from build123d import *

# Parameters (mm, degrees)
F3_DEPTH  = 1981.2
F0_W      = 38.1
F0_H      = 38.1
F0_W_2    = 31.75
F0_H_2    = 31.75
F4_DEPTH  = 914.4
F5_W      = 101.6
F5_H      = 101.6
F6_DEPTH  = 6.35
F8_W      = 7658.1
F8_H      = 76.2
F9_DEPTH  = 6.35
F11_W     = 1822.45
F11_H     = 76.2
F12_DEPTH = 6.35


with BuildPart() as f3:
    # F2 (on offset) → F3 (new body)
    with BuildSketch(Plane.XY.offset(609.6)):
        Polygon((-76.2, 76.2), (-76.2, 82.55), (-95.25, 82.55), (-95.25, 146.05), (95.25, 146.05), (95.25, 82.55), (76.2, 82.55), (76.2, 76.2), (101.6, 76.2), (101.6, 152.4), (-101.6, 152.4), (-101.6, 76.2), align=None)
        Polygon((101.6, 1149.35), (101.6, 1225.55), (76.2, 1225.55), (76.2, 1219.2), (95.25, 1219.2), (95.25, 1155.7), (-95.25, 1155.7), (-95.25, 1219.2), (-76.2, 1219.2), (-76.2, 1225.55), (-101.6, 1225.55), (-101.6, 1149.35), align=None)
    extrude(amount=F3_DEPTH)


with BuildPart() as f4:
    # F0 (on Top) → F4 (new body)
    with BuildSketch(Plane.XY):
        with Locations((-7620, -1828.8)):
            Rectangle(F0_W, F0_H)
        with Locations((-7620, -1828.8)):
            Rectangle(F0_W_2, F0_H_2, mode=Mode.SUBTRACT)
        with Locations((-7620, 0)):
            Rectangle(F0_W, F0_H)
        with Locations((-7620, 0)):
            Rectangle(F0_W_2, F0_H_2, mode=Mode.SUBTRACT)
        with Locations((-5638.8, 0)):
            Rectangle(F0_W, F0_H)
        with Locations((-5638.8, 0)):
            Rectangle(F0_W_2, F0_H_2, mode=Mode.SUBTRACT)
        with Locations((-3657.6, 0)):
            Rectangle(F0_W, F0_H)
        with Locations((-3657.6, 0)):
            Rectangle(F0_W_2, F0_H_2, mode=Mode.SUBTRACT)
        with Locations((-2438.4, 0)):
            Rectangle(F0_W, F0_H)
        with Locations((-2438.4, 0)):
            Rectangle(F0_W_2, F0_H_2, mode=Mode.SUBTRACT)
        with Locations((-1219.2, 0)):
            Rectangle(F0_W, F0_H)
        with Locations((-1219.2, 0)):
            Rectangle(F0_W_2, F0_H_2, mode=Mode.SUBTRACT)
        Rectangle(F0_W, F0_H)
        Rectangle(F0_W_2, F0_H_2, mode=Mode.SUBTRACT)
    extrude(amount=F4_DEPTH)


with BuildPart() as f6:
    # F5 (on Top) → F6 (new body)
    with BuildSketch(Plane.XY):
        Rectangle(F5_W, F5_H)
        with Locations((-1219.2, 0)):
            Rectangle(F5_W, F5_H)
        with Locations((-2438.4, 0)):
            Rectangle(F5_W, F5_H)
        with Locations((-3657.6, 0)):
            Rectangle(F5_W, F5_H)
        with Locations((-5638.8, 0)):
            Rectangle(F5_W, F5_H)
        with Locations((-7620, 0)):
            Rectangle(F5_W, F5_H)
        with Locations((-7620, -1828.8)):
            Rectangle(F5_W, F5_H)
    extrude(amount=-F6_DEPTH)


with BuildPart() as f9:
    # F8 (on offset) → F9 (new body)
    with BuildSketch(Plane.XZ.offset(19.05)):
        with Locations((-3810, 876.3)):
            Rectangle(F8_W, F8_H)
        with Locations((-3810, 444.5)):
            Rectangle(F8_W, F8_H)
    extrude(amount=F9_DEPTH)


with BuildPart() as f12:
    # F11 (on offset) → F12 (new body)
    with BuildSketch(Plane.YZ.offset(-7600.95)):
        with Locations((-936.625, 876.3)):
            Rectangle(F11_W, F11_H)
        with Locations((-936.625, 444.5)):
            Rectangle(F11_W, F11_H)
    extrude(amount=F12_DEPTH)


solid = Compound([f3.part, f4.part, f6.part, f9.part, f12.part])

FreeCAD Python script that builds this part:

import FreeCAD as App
import Part
import Sketcher
from FreeCAD import Vector
Q = App.Units.Quantity

doc = App.newDocument("Part")
body = doc.addObject("PartDesign::Body", "Body")
body.AllowCompound = True

sketch1 = body.newObject("Sketcher::SketchObject", "Sketch")
sketch1.AttachmentSupport = (doc.getObject("XY_Plane"), [""])
sketch1.MapMode = "FlatFace"
sketch1.AttachmentOffset = App.Placement(Vector(0, 0, 24 * 25.4), App.Rotation())
sketch1.addGeometry([
    Part.LineSegment(Vector(-76.2, 76.2, 0), Vector(-76.2, 82.55, 0)),
    Part.LineSegment(Vector(-76.2, 82.55, 0), Vector(-95.25, 82.55, 0)),
    Part.LineSegment(Vector(-95.25, 82.55, 0), Vector(-95.25, 146.05, 0)),
    Part.LineSegment(Vector(-95.25, 146.05, 0), Vector(95.25, 146.05, 0)),
    Part.LineSegment(Vector(95.25, 146.05, 0), Vector(95.25, 82.55, 0)),
    Part.LineSegment(Vector(95.25, 82.55, 0), Vector(76.2, 82.55, 0)),
    Part.LineSegment(Vector(76.2, 82.55, 0), Vector(76.2, 76.2, 0)),
    Part.LineSegment(Vector(76.2, 76.2, 0), Vector(101.6, 76.2, 0)),
    Part.LineSegment(Vector(101.6, 76.2, 0), Vector(101.6, 152.4, 0)),
    Part.LineSegment(Vector(101.6, 152.4, 0), Vector(-101.6, 152.4, 0)),
    Part.LineSegment(Vector(-101.6, 152.4, 0), Vector(-101.6, 76.2, 0)),
    Part.LineSegment(Vector(-101.6, 76.2, 0), Vector(-76.2, 76.2, 0)),
    Part.LineSegment(Vector(101.6, 1149.35, 0), Vector(101.6, 1225.55, 0)),
    Part.LineSegment(Vector(101.6, 1225.55, 0), Vector(76.2, 1225.55, 0)),
    Part.LineSegment(Vector(76.2, 1225.55, 0), Vector(76.2, 1219.2, 0)),
    Part.LineSegment(Vector(76.2, 1219.2, 0), Vector(95.25, 1219.2, 0)),
    Part.LineSegment(Vector(95.25, 1219.2, 0), Vector(95.25, 1155.7, 0)),
    Part.LineSegment(Vector(95.25, 1155.7, 0), Vector(-95.25, 1155.7, 0)),
    Part.LineSegment(Vector(-95.25, 1155.7, 0), Vector(-95.25, 1219.2, 0)),
    Part.LineSegment(Vector(-95.25, 1219.2, 0), Vector(-76.2, 1219.2, 0)),
    Part.LineSegment(Vector(-76.2, 1219.2, 0), Vector(-76.2, 1225.55, 0)),
    Part.LineSegment(Vector(-76.2, 1225.55, 0), Vector(-101.6, 1225.55, 0)),
    Part.LineSegment(Vector(-101.6, 1225.55, 0), Vector(-101.6, 1149.35, 0)),
    Part.LineSegment(Vector(-101.6, 1149.35, 0), Vector(101.6, 1149.35, 0)),
], False)
sketch1.addConstraint([
    Sketcher.Constraint("Coincident", 0, 2, 1, 1),
    Sketcher.Constraint("Coincident", 1, 2, 2, 1),
    Sketcher.Constraint("Coincident", 2, 2, 3, 1),
    Sketcher.Constraint("Coincident", 3, 2, 4, 1),
    Sketcher.Constraint("Coincident", 4, 2, 5, 1),
    Sketcher.Constraint("Coincident", 5, 2, 6, 1),
    Sketcher.Constraint("Coincident", 6, 2, 7, 1),
    Sketcher.Constraint("Coincident", 7, 2, 8, 1),
    Sketcher.Constraint("Coincident", 8, 2, 9, 1),
    Sketcher.Constraint("Coincident", 9, 2, 10, 1),
    Sketcher.Constraint("Coincident", 10, 2, 11, 1),
    Sketcher.Constraint("Coincident", 11, 2, 0, 1),
    Sketcher.Constraint("Coincident", 12, 2, 13, 1),
    Sketcher.Constraint("Coincident", 13, 2, 14, 1),
    Sketcher.Constraint("Coincident", 14, 2, 15, 1),
    Sketcher.Constraint("Coincident", 15, 2, 16, 1),
    Sketcher.Constraint("Coincident", 16, 2, 17, 1),
    Sketcher.Constraint("Coincident", 17, 2, 18, 1),
    Sketcher.Constraint("Coincident", 18, 2, 19, 1),
    Sketcher.Constraint("Coincident", 19, 2, 20, 1),
    Sketcher.Constraint("Coincident", 20, 2, 21, 1),
    Sketcher.Constraint("Coincident", 21, 2, 22, 1),
    Sketcher.Constraint("Coincident", 22, 2, 23, 1),
    Sketcher.Constraint("Coincident", 23, 2, 12, 1),
    Sketcher.Constraint("Vertical", 0),
    Sketcher.Constraint("Horizontal", 1),
    Sketcher.Constraint("Vertical", 2),
    Sketcher.Constraint("Horizontal", 3),
    Sketcher.Constraint("Vertical", 4),
    Sketcher.Constraint("Horizontal", 5),
    Sketcher.Constraint("Vertical", 6),
    Sketcher.Constraint("Horizontal", 7),
    Sketcher.Constraint("Vertical", 8),
    Sketcher.Constraint("Horizontal", 9),
    Sketcher.Constraint("Vertical", 10),
    Sketcher.Constraint("Horizontal", 11),
    Sketcher.Constraint("Vertical", 12),
    Sketcher.Constraint("Horizontal", 13),
    Sketcher.Constraint("Vertical", 14),
    Sketcher.Constraint("Horizontal", 15),
    Sketcher.Constraint("Vertical", 16),
    Sketcher.Constraint("Horizontal", 17),
    Sketcher.Constraint("Vertical", 18),
    Sketcher.Constraint("Horizontal", 19),
    Sketcher.Constraint("Vertical", 20),
    Sketcher.Constraint("Horizontal", 21),
    Sketcher.Constraint("Vertical", 22),
    Sketcher.Constraint("Horizontal", 23),
    Sketcher.Constraint("Symmetric", 1, 2, 4, 2, -2),
    Sketcher.Constraint("Symmetric", 7, 2, 10, 2, -2),
    Sketcher.Constraint("Symmetric", 15, 2, 18, 2, -2),
    Sketcher.Constraint("Symmetric", 13, 2, 20, 2, -2),
    Sketcher.Constraint("Vertical", 8, 2, 12, 2),
    Sketcher.Constraint("Vertical", 6, 2, 13, 2),
    Sketcher.Constraint("Vertical", 4, 2, 15, 2),
    Sketcher.Constraint("Vertical", 11, 2, 19, 2),
    Sketcher.Constraint("Vertical", 10, 2, 21, 2),
    Sketcher.Constraint("Equal", 10, 12),
    Sketcher.Constraint("Equal", 6, 14),
    Sketcher.Constraint("Equal", 4, 16),
    Sketcher.Constraint("DistanceX", 7, 1, 7, 2, Q("1 in")),
    Sketcher.Constraint("DistanceX", 9, 2, 9, 1, Q("8 in")),
    Sketcher.Constraint("DistanceY", 8, 1, 8, 2, Q("3 in")),
    Sketcher.Constraint("DistanceX", 3, 1, 3, 2, Q("7.5 in")),
    Sketcher.Constraint("DistanceY", 2, 1, 2, 2, Q("2.5 in")),
    Sketcher.Constraint("DistanceY", -1, 1, 6, 2, Q("3 in")),
    Sketcher.Constraint("DistanceY", -1, 1, 14, 2, Q("48 in")),
    Sketcher.Constraint("DistanceY", 0, 1, 0, 2, Q("0.25 in")),
])
pad1 = body.newObject("PartDesign::Pad", "Pad")
pad1.Profile = sketch1
pad1.Length = Q("78 in")
body2 = doc.addObject("PartDesign::Body", "Body001")
body2.AllowCompound = True

sketch2 = body2.newObject("Sketcher::SketchObject", "Sketch001")
sketch2.AttachmentSupport = (doc.getObject("XY_Plane001"), [""])
sketch2.MapMode = "FlatFace"
sketch2.addGeometry([
    Part.LineSegment(Vector(-7639.05, -1809.75, 0), Vector(-7639.05, -1847.85, 0)),
    Part.LineSegment(Vector(-7639.05, -1847.85, 0), Vector(-7600.95, -1847.85, 0)),
    Part.LineSegment(Vector(-7600.95, -1847.85, 0), Vector(-7600.95, -1809.75, 0)),
    Part.LineSegment(Vector(-7600.95, -1809.75, 0), Vector(-7639.05, -1809.75, 0)),
    Part.LineSegment(Vector(-7604.125, -1844.675, 0), Vector(-7635.875, -1844.675, 0)),
    Part.LineSegment(Vector(-7635.875, -1844.675, 0), Vector(-7635.875, -1812.925, 0)),
    Part.LineSegment(Vector(-7635.875, -1812.925, 0), Vector(-7604.125, -1812.925, 0)),
    Part.LineSegment(Vector(-7604.125, -1812.925, 0), Vector(-7604.125, -1844.675, 0)),
    Part.LineSegment(Vector(-7639.05, 19.05, 0), Vector(-7639.05, -19.05, 0)),
    Part.LineSegment(Vector(-7639.05, -19.05, 0), Vector(-7600.95, -19.05, 0)),
    Part.LineSegment(Vector(-7600.95, -19.05, 0), Vector(-7600.95, 19.05, 0)),
    Part.LineSegment(Vector(-7600.95, 19.05, 0), Vector(-7639.05, 19.05, 0)),
    Part.LineSegment(Vector(-7604.125, -15.875, 0), Vector(-7635.875, -15.875, 0)),
    Part.LineSegment(Vector(-7635.875, -15.875, 0), Vector(-7635.875, 15.875, 0)),
    Part.LineSegment(Vector(-7635.875, 15.875, 0), Vector(-7604.125, 15.875, 0)),
    Part.LineSegment(Vector(-7604.125, 15.875, 0), Vector(-7604.125, -15.875, 0)),
    Part.LineSegment(Vector(-5657.85, 19.05, 0), Vector(-5657.85, -19.05, 0)),
    Part.LineSegment(Vector(-5657.85, -19.05, 0), Vector(-5619.75, -19.05, 0)),
    Part.LineSegment(Vector(-5619.75, -19.05, 0), Vector(-5619.75, 19.05, 0)),
    Part.LineSegment(Vector(-5619.75, 19.05, 0), Vector(-5657.85, 19.05, 0)),
    Part.LineSegment(Vector(-5622.925, -15.875, 0), Vector(-5654.675, -15.875, 0)),
    Part.LineSegment(Vector(-5654.675, -15.875, 0), Vector(-5654.675, 15.875, 0)),
    Part.LineSegment(Vector(-5654.675, 15.875, 0), Vector(-5622.925, 15.875, 0)),
    Part.LineSegment(Vector(-5622.925, 15.875, 0), Vector(-5622.925, -15.875, 0)),
    Part.LineSegment(Vector(-3676.65, 19.05, 0), Vector(-3676.65, -19.05, 0)),
    Part.LineSegment(Vector(-3676.65, -19.05, 0), Vector(-3638.55, -19.05, 0)),
    Part.LineSegment(Vector(-3638.55, -19.05, 0), Vector(-3638.55, 19.05, 0)),
    Part.LineSegment(Vector(-3638.55, 19.05, 0), Vector(-3676.65, 19.05, 0)),
    Part.LineSegment(Vector(-3641.725, -15.875, 0), Vector(-3673.475, -15.875, 0)),
    Part.LineSegment(Vector(-3673.475, -15.875, 0), Vector(-3673.475, 15.875, 0)),
    Part.LineSegment(Vector(-3673.475, 15.875, 0), Vector(-3641.725, 15.875, 0)),
    Part.LineSegment(Vector(-3641.725, 15.875, 0), Vector(-3641.725, -15.875, 0)),
    Part.LineSegment(Vector(-2457.45, 19.05, 0), Vector(-2457.45, -19.05, 0)),
    Part.LineSegment(Vector(-2457.45, -19.05, 0), Vector(-2419.35, -19.05, 0)),
    Part.LineSegment(Vector(-2419.35, -19.05, 0), Vector(-2419.35, 19.05, 0)),
    Part.LineSegment(Vector(-2419.35, 19.05, 0), Vector(-2457.45, 19.05, 0)),
    Part.LineSegment(Vector(-2422.525, -15.875, 0), Vector(-2454.275, -15.875, 0)),
    Part.LineSegment(Vector(-2454.275, -15.875, 0), Vector(-2454.275, 15.875, 0)),
    Part.LineSegment(Vector(-2454.275, 15.875, 0), Vector(-2422.525, 15.875, 0)),
    Part.LineSegment(Vector(-2422.525, 15.875, 0), Vector(-2422.525, -15.875, 0)),
    Part.LineSegment(Vector(-1238.25, 19.05, 0), Vector(-1238.25, -19.05, 0)),
    Part.LineSegment(Vector(-1238.25, -19.05, 0), Vector(-1200.15, -19.05, 0)),
    Part.LineSegment(Vector(-1200.15, -19.05, 0), Vector(-1200.15, 19.05, 0)),
    Part.LineSegment(Vector(-1200.15, 19.05, 0), Vector(-1238.25, 19.05, 0)),
    Part.LineSegment(Vector(-1203.325, -15.875, 0), Vector(-1235.075, -15.875, 0)),
    Part.LineSegment(Vector(-1235.075, -15.875, 0), Vector(-1235.075, 15.875, 0)),
    Part.LineSegment(Vector(-1235.075, 15.875, 0), Vector(-1203.325, 15.875, 0)),
    Part.LineSegment(Vector(-1203.325, 15.875, 0), Vector(-1203.325, -15.875, 0)),
    Part.LineSegment(Vector(-19.05, 19.05, 0), Vector(-19.05, -19.05, 0)),
    Part.LineSegment(Vector(-19.05, -19.05, 0), Vector(19.05, -19.05, 0)),
    Part.LineSegment(Vector(19.05, -19.05, 0), Vector(19.05, 19.05, 0)),
    Part.LineSegment(Vector(19.05, 19.05, 0), Vector(-19.05, 19.05, 0)),
    Part.LineSegment(Vector(15.875, -15.875, 0), Vector(-15.875, -15.875, 0)),
    Part.LineSegment(Vector(-15.875, -15.875, 0), Vector(-15.875, 15.875, 0)),
    Part.LineSegment(Vector(-15.875, 15.875, 0), Vector(15.875, 15.875, 0)),
    Part.LineSegment(Vector(15.875, 15.875, 0), Vector(15.875, -15.875, 0)),
], False)
sketch2.addConstraint([
    Sketcher.Constraint("Coincident", 0, 2, 1, 1),
    Sketcher.Constraint("Coincident", 1, 2, 2, 1),
    Sketcher.Constraint("Coincident", 2, 2, 3, 1),
    Sketcher.Constraint("Coincident", 3, 2, 0, 1),
    Sketcher.Constraint("Coincident", 4, 2, 5, 1),
    Sketcher.Constraint("Coincident", 5, 2, 6, 1),
    Sketcher.Constraint("Coincident", 6, 2, 7, 1),
    Sketcher.Constraint("Coincident", 7, 2, 4, 1),
    Sketcher.Constraint("Coincident", 8, 2, 9, 1),
    Sketcher.Constraint("Coincident", 9, 2, 10, 1),
    Sketcher.Constraint("Coincident", 10, 2, 11, 1),
    Sketcher.Constraint("Coincident", 11, 2, 8, 1),
    Sketcher.Constraint("Coincident", 12, 2, 13, 1),
    Sketcher.Constraint("Coincident", 13, 2, 14, 1),
    Sketcher.Constraint("Coincident", 14, 2, 15, 1),
    Sketcher.Constraint("Coincident", 15, 2, 12, 1),
    Sketcher.Constraint("Coincident", 16, 2, 17, 1),
    Sketcher.Constraint("Coincident", 17, 2, 18, 1),
    Sketcher.Constraint("Coincident", 18, 2, 19, 1),
    Sketcher.Constraint("Coincident", 19, 2, 16, 1),
    Sketcher.Constraint("Coincident", 20, 2, 21, 1),
    Sketcher.Constraint("Coincident", 21, 2, 22, 1),
    Sketcher.Constraint("Coincident", 22, 2, 23, 1),
    Sketcher.Constraint("Coincident", 23, 2, 20, 1),
    Sketcher.Constraint("Coincident", 24, 2, 25, 1),
    Sketcher.Constraint("Coincident", 25, 2, 26, 1),
    Sketcher.Constraint("Coincident", 26, 2, 27, 1),
    Sketcher.Constraint("Coincident", 27, 2, 24, 1),
    Sketcher.Constraint("Coincident", 28, 2, 29, 1),
    Sketcher.Constraint("Coincident", 29, 2, 30, 1),
    Sketcher.Constraint("Coincident", 30, 2, 31, 1),
    Sketcher.Constraint("Coincident", 31, 2, 28, 1),
    Sketcher.Constraint("Coincident", 32, 2, 33, 1),
    Sketcher.Constraint("Coincident", 33, 2, 34, 1),
    Sketcher.Constraint("Coincident", 34, 2, 35, 1),
    Sketcher.Constraint("Coincident", 35, 2, 32, 1),
    Sketcher.Constraint("Coincident", 36, 2, 37, 1),
    Sketcher.Constraint("Coincident", 37, 2, 38, 1),
    Sketcher.Constraint("Coincident", 38, 2, 39, 1),
    Sketcher.Constraint("Coincident", 39, 2, 36, 1),
    Sketcher.Constraint("Coincident", 40, 2, 41, 1),
    Sketcher.Constraint("Coincident", 41, 2, 42, 1),
    Sketcher.Constraint("Coincident", 42, 2, 43, 1),
    Sketcher.Constraint("Coincident", 43, 2, 40, 1),
    Sketcher.Constraint("Coincident", 44, 2, 45, 1),
    Sketcher.Constraint("Coincident", 45, 2, 46, 1),
    Sketcher.Constraint("Coincident", 46, 2, 47, 1),
    Sketcher.Constraint("Coincident", 47, 2, 44, 1),
    Sketcher.Constraint("Coincident", 48, 2, 49, 1),
    Sketcher.Constraint("Coincident", 49, 2, 50, 1),
    Sketcher.Constraint("Coincident", 50, 2, 51, 1),
    Sketcher.Constraint("Coincident", 51, 2, 48, 1),
    Sketcher.Constraint("Coincident", 52, 2, 53, 1),
    Sketcher.Constraint("Coincident", 53, 2, 54, 1),
    Sketcher.Constraint("Coincident", 54, 2, 55, 1),
    Sketcher.Constraint("Coincident", 55, 2, 52, 1),
    Sketcher.Constraint("Vertical", 0),
    Sketcher.Constraint("Horizontal", 1),
    Sketcher.Constraint("Vertical", 2),
    Sketcher.Constraint("Horizontal", 3),
    Sketcher.Constraint("Horizontal", 4),
    Sketcher.Constraint("Vertical", 5),
    Sketcher.Constraint("Horizontal", 6),
    Sketcher.Constraint("Vertical", 7),
    Sketcher.Constraint("Vertical", 8),
    Sketcher.Constraint("Horizontal", 9),
    Sketcher.Constraint("Vertical", 10),
    Sketcher.Constraint("Horizontal", 11),
    Sketcher.Constraint("Horizontal", 12),
    Sketcher.Constraint("Vertical", 13),
    Sketcher.Constraint("Horizontal", 14),
    Sketcher.Constraint("Vertical", 15),
    Sketcher.Constraint("Vertical", 16),
    Sketcher.Constraint("Horizontal", 17),
    Sketcher.Constraint("Vertical", 18),
    Sketcher.Constraint("Horizontal", 19),
    Sketcher.Constraint("Horizontal", 20),
    Sketcher.Constraint("Vertical", 21),
    Sketcher.Constraint("Horizontal", 22),
    Sketcher.Constraint("Vertical", 23),
    Sketcher.Constraint("Vertical", 24),
    Sketcher.Constraint("Horizontal", 25),
    Sketcher.Constraint("Vertical", 26),
    Sketcher.Constraint("Horizontal", 27),
    Sketcher.Constraint("Horizontal", 28),
    Sketcher.Constraint("Vertical", 29),
    Sketcher.Constraint("Horizontal", 30),
    Sketcher.Constraint("Vertical", 31),
    Sketcher.Constraint("Vertical", 32),
    Sketcher.Constraint("Horizontal", 33),
    Sketcher.Constraint("Vertical", 34),
    Sketcher.Constraint("Horizontal", 35),
    Sketcher.Constraint("Horizontal", 36),
    Sketcher.Constraint("Vertical", 37),
    Sketcher.Constraint("Horizontal", 38),
    Sketcher.Constraint("Vertical", 39),
    Sketcher.Constraint("Vertical", 40),
    Sketcher.Constraint("Horizontal", 41),
    Sketcher.Constraint("Vertical", 42),
    Sketcher.Constraint("Horizontal", 43),
    Sketcher.Constraint("Horizontal", 44),
    Sketcher.Constraint("Vertical", 45),
    Sketcher.Constraint("Horizontal", 46),
    Sketcher.Constraint("Vertical", 47),
    Sketcher.Constraint("Vertical", 48),
    Sketcher.Constraint("Horizontal", 49),
    Sketcher.Constraint("Vertical", 50),
    Sketcher.Constraint("Horizontal", 51),
    Sketcher.Constraint("Horizontal", 52),
    Sketcher.Constraint("Vertical", 53),
    Sketcher.Constraint("Horizontal", 54),
    Sketcher.Constraint("Vertical", 55),
    Sketcher.Constraint("Symmetric", 48, 2, 50, 2, -1, 1),
    Sketcher.Constraint("Symmetric", 52, 2, 54, 2, -1, 1),
    Sketcher.Constraint("Horizontal", 9, 2, 16, 2),
    Sketcher.Constraint("Horizontal", 11, 2, 18, 2),
    Sketcher.Constraint("Horizontal", 15, 2, 20, 2),
    Sketcher.Constraint("Horizontal", 14, 2, 21, 2),
    Sketcher.Constraint("Horizontal", 17, 2, 24, 2),
    Sketcher.Constraint("Horizontal", 19, 2, 26, 2),
    Sketcher.Constraint("Horizontal", 23, 2, 28, 2),
    Sketcher.Constraint("Horizontal", 22, 2, 29, 2),
    Sketcher.Constraint("Horizontal", 25, 2, 32, 2),
    Sketcher.Constraint("Horizontal", 27, 2, 34, 2),
    Sketcher.Constraint("Horizontal", 31, 2, 36, 2),
    Sketcher.Constraint("Horizontal", 30, 2, 37, 2),
    Sketcher.Constraint("Horizontal", 33, 2, 40, 2),
    Sketcher.Constraint("Horizontal", 35, 2, 42, 2),
    Sketcher.Constraint("Horizontal", 39, 2, 44, 2),
    Sketcher.Constraint("Horizontal", 38, 2, 45, 2),
    Sketcher.Constraint("Horizontal", 41, 2, 48, 2),
    Sketcher.Constraint("Horizontal", 43, 2, 50, 2),
    Sketcher.Constraint("Horizontal", 47, 2, 52, 2),
    Sketcher.Constraint("Horizontal", 46, 2, 53, 2),
    Sketcher.Constraint("Vertical", 3, 2, 8, 2),
    Sketcher.Constraint("Vertical", 2, 2, 9, 2),
    Sketcher.Constraint("Vertical", 5, 2, 12, 2),
    Sketcher.Constraint("Vertical", 7, 2, 14, 2),
    Sketcher.Constraint("Equal", 11, 17),
    Sketcher.Constraint("Equal", 14, 20),
    Sketcher.Constraint("Equal", 19, 25),
    Sketcher.Constraint("Equal", 22, 28),
    Sketcher.Constraint("Equal", 27, 33),
    Sketcher.Constraint("Equal", 30, 36),
    Sketcher.Constraint("Equal", 35, 41),
    Sketcher.Constraint("Equal", 38, 44),
    Sketcher.Constraint("Equal", 43, 49),
    Sketcher.Constraint("Equal", 46, 52),
    Sketcher.Constraint("Equal", 51, 0),
    Sketcher.Constraint("Equal", 54, 5),
    Sketcher.Constraint("Equal", 2, 8),
    Sketcher.Constraint("Equal", 7, 13),
    Sketcher.Constraint("DistanceX", 1, 1, 1, 2, Q("1.5 in")),
    Sketcher.Constraint("DistanceY", 2, 2, 10, 2, Q("72 in")),
    Sketcher.Constraint("DistanceX", 9, 2, 17, 2, Q("78 in")),
    Sketcher.Constraint("DistanceX", 17, 2, 25, 2, Q("78 in")),
    Sketcher.Constraint("DistanceX", 25, 2, 33, 2, Q("48 in")),
    Sketcher.Constraint("DistanceX", 33, 2, 41, 2, Q("48 in")),
    Sketcher.Constraint("DistanceX", 41, 2, 49, 2, Q("48 in")),
    Sketcher.Constraint("DistanceX", 4, 2, 4, 1, Q("1.25 in")),
    Sketcher.Constraint("DistanceX", 4, 2, -1, 1, Q("300.625 in")),
    Sketcher.Constraint("DistanceY", 4, 2, -1, 1, Q("72.625 in")),
    Sketcher.Constraint("DistanceX", 20, 2, -1, 1, Q("222.625 in")),
    Sketcher.Constraint("DistanceX", 28, 2, -1, 1, Q("144.625 in")),
    Sketcher.Constraint("DistanceX", 36, 2, -1, 1, Q("96.625 in")),
    Sketcher.Constraint("DistanceX", 44, 2, -1, 1, Q("48.625 in")),
])
pad2 = body2.newObject("PartDesign::Pad", "Pad001")
pad2.Profile = sketch2
pad2.Length = Q("36 in")
body3 = doc.addObject("PartDesign::Body", "Body002")
body3.AllowCompound = True

sketch3 = body3.newObject("Sketcher::SketchObject", "Sketch002")
sketch3.AttachmentSupport = (doc.getObject("XY_Plane002"), [""])
sketch3.MapMode = "FlatFace"
sketch3.addGeometry([
    Part.LineSegment(Vector(-50.8, 50.8, 0), Vector(-50.8, -50.8, 0)),
    Part.LineSegment(Vector(-50.8, -50.8, 0), Vector(50.8, -50.8, 0)),
    Part.LineSegment(Vector(50.8, -50.8, 0), Vector(50.8, 50.8, 0)),
    Part.LineSegment(Vector(50.8, 50.8, 0), Vector(-50.8, 50.8, 0)),
    Part.LineSegment(Vector(-1270, 50.8, 0), Vector(-1270, -50.8, 0)),
    Part.LineSegment(Vector(-1270, -50.8, 0), Vector(-1168.4, -50.8, 0)),
    Part.LineSegment(Vector(-1168.4, -50.8, 0), Vector(-1168.4, 50.8, 0)),
    Part.LineSegment(Vector(-1168.4, 50.8, 0), Vector(-1270, 50.8, 0)),
    Part.LineSegment(Vector(-2489.2, 50.8, 0), Vector(-2489.2, -50.8, 0)),
    Part.LineSegment(Vector(-2489.2, -50.8, 0), Vector(-2387.6, -50.8, 0)),
    Part.LineSegment(Vector(-2387.6, -50.8, 0), Vector(-2387.6, 50.8, 0)),
    Part.LineSegment(Vector(-2387.6, 50.8, 0), Vector(-2489.2, 50.8, 0)),
    Part.LineSegment(Vector(-3708.4, 50.8, 0), Vector(-3708.4, -50.8, 0)),
    Part.LineSegment(Vector(-3708.4, -50.8, 0), Vector(-3606.8, -50.8, 0)),
    Part.LineSegment(Vector(-3606.8, -50.8, 0), Vector(-3606.8, 50.8, 0)),
    Part.LineSegment(Vector(-3606.8, 50.8, 0), Vector(-3708.4, 50.8, 0)),
    Part.LineSegment(Vector(-5689.6, 50.8, 0), Vector(-5689.6, -50.8, 0)),
    Part.LineSegment(Vector(-5689.6, -50.8, 0), Vector(-5588, -50.8, 0)),
    Part.LineSegment(Vector(-5588, -50.8, 0), Vector(-5588, 50.8, 0)),
    Part.LineSegment(Vector(-5588, 50.8, 0), Vector(-5689.6, 50.8, 0)),
    Part.LineSegment(Vector(-7670.8, 50.8, 0), Vector(-7670.8, -50.8, 0)),
    Part.LineSegment(Vector(-7670.8, -50.8, 0), Vector(-7569.2, -50.8, 0)),
    Part.LineSegment(Vector(-7569.2, -50.8, 0), Vector(-7569.2, 50.8, 0)),
    Part.LineSegment(Vector(-7569.2, 50.8, 0), Vector(-7670.8, 50.8, 0)),
    Part.LineSegment(Vector(-7670.8, -1778, 0), Vector(-7670.8, -1879.6, 0)),
    Part.LineSegment(Vector(-7670.8, -1879.6, 0), Vector(-7569.2, -1879.6, 0)),
    Part.LineSegment(Vector(-7569.2, -1879.6, 0), Vector(-7569.2, -1778, 0)),
    Part.LineSegment(Vector(-7569.2, -1778, 0), Vector(-7670.8, -1778, 0)),
], False)
sketch3.addConstraint([
    Sketcher.Constraint("Coincident", 0, 2, 1, 1),
    Sketcher.Constraint("Coincident", 1, 2, 2, 1),
    Sketcher.Constraint("Coincident", 2, 2, 3, 1),
    Sketcher.Constraint("Coincident", 3, 2, 0, 1),
    Sketcher.Constraint("Coincident", 4, 2, 5, 1),
    Sketcher.Constraint("Coincident", 5, 2, 6, 1),
    Sketcher.Constraint("Coincident", 6, 2, 7, 1),
    Sketcher.Constraint("Coincident", 7, 2, 4, 1),
    Sketcher.Constraint("Coincident", 8, 2, 9, 1),
    Sketcher.Constraint("Coincident", 9, 2, 10, 1),
    Sketcher.Constraint("Coincident", 10, 2, 11, 1),
    Sketcher.Constraint("Coincident", 11, 2, 8, 1),
    Sketcher.Constraint("Coincident", 12, 2, 13, 1),
    Sketcher.Constraint("Coincident", 13, 2, 14, 1),
    Sketcher.Constraint("Coincident", 14, 2, 15, 1),
    Sketcher.Constraint("Coincident", 15, 2, 12, 1),
    Sketcher.Constraint("Coincident", 16, 2, 17, 1),
    Sketcher.Constraint("Coincident", 17, 2, 18, 1),
    Sketcher.Constraint("Coincident", 18, 2, 19, 1),
    Sketcher.Constraint("Coincident", 19, 2, 16, 1),
    Sketcher.Constraint("Coincident", 20, 2, 21, 1),
    Sketcher.Constraint("Coincident", 21, 2, 22, 1),
    Sketcher.Constraint("Coincident", 22, 2, 23, 1),
    Sketcher.Constraint("Coincident", 23, 2, 20, 1),
    Sketcher.Constraint("Coincident", 24, 2, 25, 1),
    Sketcher.Constraint("Coincident", 25, 2, 26, 1),
    Sketcher.Constraint("Coincident", 26, 2, 27, 1),
    Sketcher.Constraint("Coincident", 27, 2, 24, 1),
    Sketcher.Constraint("Vertical", 0),
    Sketcher.Constraint("Horizontal", 1),
    Sketcher.Constraint("Vertical", 2),
    Sketcher.Constraint("Horizontal", 3),
    Sketcher.Constraint("Vertical", 4),
    Sketcher.Constraint("Horizontal", 5),
    Sketcher.Constraint("Vertical", 6),
    Sketcher.Constraint("Horizontal", 7),
    Sketcher.Constraint("Vertical", 8),
    Sketcher.Constraint("Horizontal", 9),
    Sketcher.Constraint("Vertical", 10),
    Sketcher.Constraint("Horizontal", 11),
    Sketcher.Constraint("Vertical", 12),
    Sketcher.Constraint("Horizontal", 13),
    Sketcher.Constraint("Vertical", 14),
    Sketcher.Constraint("Horizontal", 15),
    Sketcher.Constraint("Vertical", 16),
    Sketcher.Constraint("Horizontal", 17),
    Sketcher.Constraint("Vertical", 18),
    Sketcher.Constraint("Horizontal", 19),
    Sketcher.Constraint("Vertical", 20),
    Sketcher.Constraint("Horizontal", 21),
    Sketcher.Constraint("Vertical", 22),
    Sketcher.Constraint("Horizontal", 23),
    Sketcher.Constraint("Vertical", 24),
    Sketcher.Constraint("Horizontal", 25),
    Sketcher.Constraint("Vertical", 26),
    Sketcher.Constraint("Horizontal", 27),
    Sketcher.Constraint("Symmetric", 0, 2, 2, 2, -1, 1),
    Sketcher.Constraint("Horizontal", 1, 2, 4, 2),
    Sketcher.Constraint("Horizontal", 3, 2, 6, 2),
    Sketcher.Constraint("Horizontal", 5, 2, 8, 2),
    Sketcher.Constraint("Horizontal", 7, 2, 10, 2),
    Sketcher.Constraint("Horizontal", 9, 2, 12, 2),
    Sketcher.Constraint("Horizontal", 11, 2, 14, 2),
    Sketcher.Constraint("Horizontal", 13, 2, 16, 2),
    Sketcher.Constraint("Horizontal", 15, 2, 18, 2),
    Sketcher.Constraint("Horizontal", 17, 2, 20, 2),
    Sketcher.Constraint("Horizontal", 19, 2, 22, 2),
    Sketcher.Constraint("Vertical", 23, 2, 24, 2),
    Sketcher.Constraint("Vertical", 22, 2, 25, 2),
    Sketcher.Constraint("Equal", 3, 5),
    Sketcher.Constraint("Equal", 7, 9),
    Sketcher.Constraint("Equal", 11, 13),
    Sketcher.Constraint("Equal", 15, 17),
    Sketcher.Constraint("Equal", 19, 21),
    Sketcher.Constraint("Equal", 27, 0),
    Sketcher.Constraint("Equal", 22, 24),
    Sketcher.Constraint("DistanceX", 1, 1, 1, 2, Q("4 in")),
    Sketcher.Constraint("DistanceX", 4, 2, -1, 1, Q("50 in")),
    Sketcher.Constraint("DistanceX", 8, 2, -1, 1, Q("98 in")),
    Sketcher.Constraint("DistanceX", 12, 2, -1, 1, Q("146 in")),
    Sketcher.Constraint("DistanceX", 16, 2, -1, 1, Q("224 in")),
    Sketcher.Constraint("DistanceX", 20, 2, -1, 1, Q("302 in")),
    Sketcher.Constraint("DistanceY", 24, 2, -1, 1, Q("74 in")),
])
pad3 = body3.newObject("PartDesign::Pad", "Pad002")
pad3.Profile = sketch3
pad3.Length = Q("0.25 in")
pad3.Reversed = True
body4 = doc.addObject("PartDesign::Body", "Body003")
body4.AllowCompound = True

sketch4 = body4.newObject("Sketcher::SketchObject", "Sketch003")
sketch4.AttachmentSupport = (doc.getObject("XZ_Plane003"), [""])
sketch4.MapMode = "FlatFace"
sketch4.AttachmentOffset = App.Placement(Vector(0, 0, 0.75 * 25.4), App.Rotation())
sketch4.addGeometry([
    Part.LineSegment(Vector(-7639.05, 914.4, 0), Vector(-7639.05, 838.2, 0)),
    Part.LineSegment(Vector(-7639.05, 838.2, 0), Vector(19.05, 838.2, 0)),
    Part.LineSegment(Vector(19.05, 838.2, 0), Vector(19.05, 914.4, 0)),
    Part.LineSegment(Vector(19.05, 914.4, 0), Vector(-7639.05, 914.4, 0)),
    Part.LineSegment(Vector(-7639.05, 482.6, 0), Vector(-7639.05, 406.4, 0)),
    Part.LineSegment(Vector(-7639.05, 406.4, 0), Vector(19.05, 406.4, 0)),
    Part.LineSegment(Vector(19.05, 406.4, 0), Vector(19.05, 482.6, 0)),
    Part.LineSegment(Vector(19.05, 482.6, 0), Vector(-7639.05, 482.6, 0)),
], False)
sketch4.addConstraint([
    Sketcher.Constraint("Coincident", 0, 2, 1, 1),
    Sketcher.Constraint("Coincident", 1, 2, 2, 1),
    Sketcher.Constraint("Coincident", 2, 2, 3, 1),
    Sketcher.Constraint("Coincident", 3, 2, 0, 1),
    Sketcher.Constraint("Coincident", 4, 2, 5, 1),
    Sketcher.Constraint("Coincident", 5, 2, 6, 1),
    Sketcher.Constraint("Coincident", 6, 2, 7, 1),
    Sketcher.Constraint("Coincident", 7, 2, 4, 1),
    Sketcher.Constraint("Vertical", 0),
    Sketcher.Constraint("Horizontal", 1),
    Sketcher.Constraint("Vertical", 2),
    Sketcher.Constraint("Horizontal", 3),
    Sketcher.Constraint("Vertical", 4),
    Sketcher.Constraint("Horizontal", 5),
    Sketcher.Constraint("Vertical", 6),
    Sketcher.Constraint("Horizontal", 7),
    Sketcher.Constraint("Vertical", 3, 2, 4, 2),
    Sketcher.Constraint("Vertical", 2, 2, 5, 2),
    Sketcher.Constraint("Equal", 2, 4),
    Sketcher.Constraint("DistanceY", 0, 2, 0, 1, Q("3 in")),
    Sketcher.Constraint("DistanceX", 1, 1, 1, 2, Q("301.5 in")),
    Sketcher.Constraint("DistanceY", -1, 1, 0, 2, Q("33 in")),
    Sketcher.Constraint("DistanceY", -1, 1, 4, 2, Q("16 in")),
    Sketcher.Constraint("DistanceX", 0, 2, -1, 1, Q("300.75 in")),
])
pad4 = body4.newObject("PartDesign::Pad", "Pad003")
pad4.Profile = sketch4
pad4.Length = Q("0.25 in")
body5 = doc.addObject("PartDesign::Body", "Body004")
body5.AllowCompound = True

sketch5 = body5.newObject("Sketcher::SketchObject", "Sketch004")
sketch5.AttachmentSupport = (doc.getObject("YZ_Plane004"), [""])
sketch5.MapMode = "FlatFace"
sketch5.AttachmentOffset = App.Placement(Vector(0, 0, -299.25 * 25.4), App.Rotation())
sketch5.addGeometry([
    Part.LineSegment(Vector(-1847.85, 914.4, 0), Vector(-1847.85, 838.2, 0)),
    Part.LineSegment(Vector(-1847.85, 838.2, 0), Vector(-25.4, 838.2, 0)),
    Part.LineSegment(Vector(-25.4, 838.2, 0), Vector(-25.4, 914.4, 0)),
    Part.LineSegment(Vector(-25.4, 914.4, 0), Vector(-1847.85, 914.4, 0)),
    Part.LineSegment(Vector(-1847.85, 482.6, 0), Vector(-1847.85, 406.4, 0)),
    Part.LineSegment(Vector(-1847.85, 406.4, 0), Vector(-25.4, 406.4, 0)),
    Part.LineSegment(Vector(-25.4, 406.4, 0), Vector(-25.4, 482.6, 0)),
    Part.LineSegment(Vector(-25.4, 482.6, 0), Vector(-1847.85, 482.6, 0)),
], False)
sketch5.addConstraint([
    Sketcher.Constraint("Coincident", 0, 2, 1, 1),
    Sketcher.Constraint("Coincident", 1, 2, 2, 1),
    Sketcher.Constraint("Coincident", 2, 2, 3, 1),
    Sketcher.Constraint("Coincident", 3, 2, 0, 1),
    Sketcher.Constraint("Coincident", 4, 2, 5, 1),
    Sketcher.Constraint("Coincident", 5, 2, 6, 1),
    Sketcher.Constraint("Coincident", 6, 2, 7, 1),
    Sketcher.Constraint("Coincident", 7, 2, 4, 1),
    Sketcher.Constraint("Vertical", 0),
    Sketcher.Constraint("Horizontal", 1),
    Sketcher.Constraint("Vertical", 2),
    Sketcher.Constraint("Horizontal", 3),
    Sketcher.Constraint("Vertical", 4),
    Sketcher.Constraint("Horizontal", 5),
    Sketcher.Constraint("Vertical", 6),
    Sketcher.Constraint("Horizontal", 7),
    Sketcher.Constraint("Vertical", 3, 2, 4, 2),
    Sketcher.Constraint("Vertical", 2, 2, 5, 2),
    Sketcher.Constraint("Equal", 2, 4),
    Sketcher.Constraint("DistanceY", 0, 2, 0, 1, Q("3 in")),
    Sketcher.Constraint("DistanceY", -1, 1, 0, 2, Q("33 in")),
    Sketcher.Constraint("DistanceX", 1, 2, -1, 1, Q("1 in")),
    Sketcher.Constraint("DistanceY", -1, 1, 4, 2, Q("16 in")),
    Sketcher.Constraint("DistanceX", 1, 1, 1, 2, Q("71.75 in")),
])
pad5 = body5.newObject("PartDesign::Pad", "Pad004")
pad5.Profile = sketch5
pad5.Length = Q("0.25 in")

doc.recompute()
